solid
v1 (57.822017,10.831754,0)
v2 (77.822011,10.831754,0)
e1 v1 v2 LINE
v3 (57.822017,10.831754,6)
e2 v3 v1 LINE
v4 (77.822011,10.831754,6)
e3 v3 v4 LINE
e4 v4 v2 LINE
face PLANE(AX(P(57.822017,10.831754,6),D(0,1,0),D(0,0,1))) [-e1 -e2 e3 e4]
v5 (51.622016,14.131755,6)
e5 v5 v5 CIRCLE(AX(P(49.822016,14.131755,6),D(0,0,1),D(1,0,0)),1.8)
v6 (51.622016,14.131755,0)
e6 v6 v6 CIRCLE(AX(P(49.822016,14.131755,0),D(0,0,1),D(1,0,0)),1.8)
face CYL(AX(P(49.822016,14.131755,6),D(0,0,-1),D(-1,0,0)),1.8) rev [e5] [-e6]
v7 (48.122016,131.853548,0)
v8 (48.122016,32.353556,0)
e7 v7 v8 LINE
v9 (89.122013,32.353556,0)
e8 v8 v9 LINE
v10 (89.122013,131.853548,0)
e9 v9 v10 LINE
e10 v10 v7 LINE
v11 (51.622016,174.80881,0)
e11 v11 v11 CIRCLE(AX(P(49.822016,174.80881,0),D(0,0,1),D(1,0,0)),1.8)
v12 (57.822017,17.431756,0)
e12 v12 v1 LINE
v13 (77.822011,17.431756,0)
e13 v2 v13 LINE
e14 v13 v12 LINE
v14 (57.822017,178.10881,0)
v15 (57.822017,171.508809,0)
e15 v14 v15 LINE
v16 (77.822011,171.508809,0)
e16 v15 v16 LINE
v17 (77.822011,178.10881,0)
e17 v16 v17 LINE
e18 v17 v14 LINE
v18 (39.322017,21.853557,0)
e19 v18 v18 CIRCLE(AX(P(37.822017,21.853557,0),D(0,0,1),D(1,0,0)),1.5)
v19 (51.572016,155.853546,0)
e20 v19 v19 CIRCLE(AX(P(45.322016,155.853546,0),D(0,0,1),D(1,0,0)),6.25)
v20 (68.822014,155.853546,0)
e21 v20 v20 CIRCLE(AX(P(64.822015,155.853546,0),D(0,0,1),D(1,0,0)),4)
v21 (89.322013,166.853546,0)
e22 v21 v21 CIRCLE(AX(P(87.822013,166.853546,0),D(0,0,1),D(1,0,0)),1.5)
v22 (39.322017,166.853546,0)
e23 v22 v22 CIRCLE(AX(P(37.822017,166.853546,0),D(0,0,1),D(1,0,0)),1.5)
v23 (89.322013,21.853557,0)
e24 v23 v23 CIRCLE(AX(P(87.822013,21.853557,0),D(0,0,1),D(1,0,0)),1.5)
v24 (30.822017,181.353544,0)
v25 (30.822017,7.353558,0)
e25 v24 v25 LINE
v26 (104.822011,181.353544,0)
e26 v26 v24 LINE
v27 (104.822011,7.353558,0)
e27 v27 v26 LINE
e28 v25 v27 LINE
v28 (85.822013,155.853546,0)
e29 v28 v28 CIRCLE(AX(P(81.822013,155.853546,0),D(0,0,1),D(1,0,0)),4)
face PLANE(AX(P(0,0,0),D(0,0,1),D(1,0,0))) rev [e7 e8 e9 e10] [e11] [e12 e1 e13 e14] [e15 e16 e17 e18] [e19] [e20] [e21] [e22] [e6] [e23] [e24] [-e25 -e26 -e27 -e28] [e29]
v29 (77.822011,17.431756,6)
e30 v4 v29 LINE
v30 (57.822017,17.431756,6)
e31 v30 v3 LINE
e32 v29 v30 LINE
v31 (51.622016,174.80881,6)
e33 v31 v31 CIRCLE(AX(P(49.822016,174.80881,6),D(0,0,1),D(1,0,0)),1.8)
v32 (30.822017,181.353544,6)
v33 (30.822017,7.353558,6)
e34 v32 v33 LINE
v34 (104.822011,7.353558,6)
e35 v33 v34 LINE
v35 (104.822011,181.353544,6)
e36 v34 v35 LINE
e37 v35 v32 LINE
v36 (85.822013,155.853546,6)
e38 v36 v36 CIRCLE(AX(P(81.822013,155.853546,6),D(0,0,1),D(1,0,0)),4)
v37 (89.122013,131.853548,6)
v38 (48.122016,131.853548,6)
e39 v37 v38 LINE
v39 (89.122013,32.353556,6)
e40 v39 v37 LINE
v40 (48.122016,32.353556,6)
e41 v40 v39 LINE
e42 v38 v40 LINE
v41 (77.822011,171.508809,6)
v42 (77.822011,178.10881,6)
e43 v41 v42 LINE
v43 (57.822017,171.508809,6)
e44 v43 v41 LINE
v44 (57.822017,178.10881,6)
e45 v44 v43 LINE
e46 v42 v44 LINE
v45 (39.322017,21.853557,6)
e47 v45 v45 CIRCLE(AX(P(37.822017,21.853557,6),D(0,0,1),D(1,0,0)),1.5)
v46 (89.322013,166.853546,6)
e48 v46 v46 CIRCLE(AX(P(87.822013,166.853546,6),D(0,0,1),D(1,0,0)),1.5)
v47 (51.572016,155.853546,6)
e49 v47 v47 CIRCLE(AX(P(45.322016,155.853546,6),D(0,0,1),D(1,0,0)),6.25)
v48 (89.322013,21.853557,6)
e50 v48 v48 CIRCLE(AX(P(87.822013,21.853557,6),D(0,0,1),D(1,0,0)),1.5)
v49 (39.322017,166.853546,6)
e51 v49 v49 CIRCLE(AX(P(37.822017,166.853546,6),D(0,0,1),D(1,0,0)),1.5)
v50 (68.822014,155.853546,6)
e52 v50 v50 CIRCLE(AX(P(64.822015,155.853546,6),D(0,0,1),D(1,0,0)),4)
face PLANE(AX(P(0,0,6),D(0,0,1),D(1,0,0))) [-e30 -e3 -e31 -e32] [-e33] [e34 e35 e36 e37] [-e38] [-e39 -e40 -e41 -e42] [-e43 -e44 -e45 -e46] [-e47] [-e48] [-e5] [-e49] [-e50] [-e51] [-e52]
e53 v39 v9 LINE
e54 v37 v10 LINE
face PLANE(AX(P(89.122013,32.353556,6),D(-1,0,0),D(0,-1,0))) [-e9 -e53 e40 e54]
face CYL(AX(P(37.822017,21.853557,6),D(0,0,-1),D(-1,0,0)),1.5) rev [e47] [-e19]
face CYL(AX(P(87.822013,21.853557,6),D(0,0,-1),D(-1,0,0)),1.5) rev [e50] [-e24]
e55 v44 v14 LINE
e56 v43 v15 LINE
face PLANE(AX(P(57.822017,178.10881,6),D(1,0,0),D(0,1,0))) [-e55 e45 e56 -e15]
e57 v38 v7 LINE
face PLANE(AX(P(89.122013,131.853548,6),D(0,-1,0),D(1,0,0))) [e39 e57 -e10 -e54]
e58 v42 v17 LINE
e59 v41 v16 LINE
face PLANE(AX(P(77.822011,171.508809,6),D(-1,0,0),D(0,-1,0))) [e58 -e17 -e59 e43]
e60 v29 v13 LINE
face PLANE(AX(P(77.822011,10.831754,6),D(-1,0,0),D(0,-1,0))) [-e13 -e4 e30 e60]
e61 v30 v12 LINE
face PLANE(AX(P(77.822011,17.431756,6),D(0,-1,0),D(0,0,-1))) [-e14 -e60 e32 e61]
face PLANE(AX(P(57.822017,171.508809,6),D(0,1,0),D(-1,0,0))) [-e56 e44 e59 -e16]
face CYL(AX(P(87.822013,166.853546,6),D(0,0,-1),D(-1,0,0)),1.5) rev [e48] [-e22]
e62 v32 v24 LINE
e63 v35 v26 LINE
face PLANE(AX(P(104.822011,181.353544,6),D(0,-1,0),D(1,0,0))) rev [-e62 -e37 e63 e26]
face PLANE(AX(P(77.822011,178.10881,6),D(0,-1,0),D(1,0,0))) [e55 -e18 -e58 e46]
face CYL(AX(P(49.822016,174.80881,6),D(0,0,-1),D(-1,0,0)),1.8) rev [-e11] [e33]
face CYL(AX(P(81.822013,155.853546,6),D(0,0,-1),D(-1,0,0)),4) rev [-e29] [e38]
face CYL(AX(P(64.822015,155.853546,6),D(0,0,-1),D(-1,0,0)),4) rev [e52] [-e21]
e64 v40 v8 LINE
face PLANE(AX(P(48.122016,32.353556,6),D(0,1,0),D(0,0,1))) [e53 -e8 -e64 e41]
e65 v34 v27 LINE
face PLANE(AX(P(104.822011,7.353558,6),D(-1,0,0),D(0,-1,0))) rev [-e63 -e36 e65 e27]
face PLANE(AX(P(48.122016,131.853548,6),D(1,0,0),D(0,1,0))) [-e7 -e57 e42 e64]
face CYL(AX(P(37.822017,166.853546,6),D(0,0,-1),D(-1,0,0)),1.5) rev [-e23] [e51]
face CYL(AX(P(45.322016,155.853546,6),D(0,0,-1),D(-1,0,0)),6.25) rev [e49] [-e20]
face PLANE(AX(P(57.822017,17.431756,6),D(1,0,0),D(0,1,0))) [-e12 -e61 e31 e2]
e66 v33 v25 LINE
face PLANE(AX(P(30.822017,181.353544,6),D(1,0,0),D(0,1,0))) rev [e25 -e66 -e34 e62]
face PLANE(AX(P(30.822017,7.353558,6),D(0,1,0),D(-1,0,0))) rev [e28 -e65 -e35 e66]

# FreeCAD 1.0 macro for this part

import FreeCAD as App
import Part
import Sketcher

V = App.Vector

doc = App.newDocument("Part")
body = doc.addObject("PartDesign::Body", "Body")

# Sketch on XY plane
sketch1 = doc.addObject("Sketcher::SketchObject", "Sketch")
body.addObject(sketch1)
sketch1.AttachmentSupport = (doc.XY_Plane, [""])
sketch1.MapMode = "FlatFace"
sketch1.addGeometry(Part.LineSegment(V(30.8, 181.4, 0), V(30.8, 7.4, 0)), False)
sketch1.addGeometry(Part.LineSegment(V(30.8, 7.4, 0), V(104.8, 7.4, 0)), False)
sketch1.addGeometry(Part.LineSegment(V(104.8, 7.4, 0), V(104.8, 181.4, 0)), False)
sketch1.addGeometry(Part.LineSegment(V(104.8, 181.4, 0), V(30.8, 181.4, 0)), False)
sketch1.addGeometry(Part.Circle(V(37.8, 21.9, 0), V(0, 0, 1), 1.5), False)
sketch1.addGeometry(Part.Circle(V(49.8, 14.1, 0), V(0, 0, 1), 1.8), False)
sketch1.addGeometry(Part.LineSegment(V(77.8, 10.8, 0), V(57.8, 10.8, 0)), False)
sketch1.addGeometry(Part.LineSegment(V(57.8, 10.8, 0), V(57.8, 17.4, 0)), False)
sketch1.addGeometry(Part.LineSegment(V(57.8, 17.4, 0), V(77.8, 17.4, 0)), False)
sketch1.addGeometry(Part.LineSegment(V(77.8, 17.4, 0), V(77.8, 10.8, 0)), False)
sketch1.addGeometry(Part.Circle(V(87.8, 21.9, 0), V(0, 0, 1), 1.5), False)
sketch1.addGeometry(Part.LineSegment(V(89.1, 32.4, 0), V(48.1, 32.4, 0)), False)
sketch1.addGeometry(Part.LineSegment(V(48.1, 32.4, 0), V(48.1, 131.9, 0)), False)
sketch1.addGeometry(Part.LineSegment(V(48.1, 131.9, 0), V(89.1, 131.9, 0)), False)
sketch1.addGeometry(Part.LineSegment(V(89.1, 131.9, 0), V(89.1, 32.4, 0)), False)
sketch1.addGeometry(Part.Circle(V(45.3, 155.9, 0), V(0, 0, 1), 6.2), False)
sketch1.addGeometry(Part.Circle(V(37.8, 166.9, 0), V(0, 0, 1), 1.5), False)
sketch1.addGeometry(Part.Circle(V(49.8, 174.8, 0), V(0, 0, 1), 1.8), False)
sketch1.addGeometry(Part.Circle(V(64.8, 155.9, 0), V(0, 0, 1), 4), False)
sketch1.addGeometry(Part.LineSegment(V(77.8, 171.5, 0), V(57.8, 171.5, 0)), False)
sketch1.addGeometry(Part.LineSegment(V(57.8, 171.5, 0), V(57.8, 178.1, 0)), False)
sketch1.addGeometry(Part.LineSegment(V(57.8, 178.1, 0), V(77.8, 178.1, 0)), False)
sketch1.addGeometry(Part.LineSegment(V(77.8, 178.1, 0), V(77.8, 171.5, 0)), False)
sketch1.addGeometry(Part.Circle(V(81.8, 155.9, 0), V(0, 0, 1), 4), False)
sketch1.addGeometry(Part.Circle(V(87.8, 166.9, 0), V(0, 0, 1), 1.5), False)
sketch1.addConstraint(Sketcher.Constraint("Coincident", 0, 2, 1, 1))
sketch1.addConstraint(Sketcher.Constraint("Coincident", 1, 2, 2, 1))
sketch1.addConstraint(Sketcher.Constraint("Coincident", 2, 2, 3, 1))
sketch1.addConstraint(Sketcher.Constraint("Coincident", 3, 2, 0, 1))
sketch1.addConstraint(Sketcher.Constraint("Coincident", 6, 2, 7, 1))
sketch1.addConstraint(Sketcher.Constraint("Coincident", 7, 2, 8, 1))
sketch1.addConstraint(Sketcher.Constraint("Coincident", 8, 2, 9, 1))
sketch1.addConstraint(Sketcher.Constraint("Coincident", 9, 2, 6, 1))
sketch1.addConstraint(Sketcher.Constraint("Coincident", 11, 2, 12, 1))
sketch1.addConstraint(Sketcher.Constraint("Coincident", 12, 2, 13, 1))
sketch1.addConstraint(Sketcher.Constraint("Coincident", 13, 2, 14, 1))
sketch1.addConstraint(Sketcher.Constraint("Coincident", 14, 2, 11, 1))
sketch1.addConstraint(Sketcher.Constraint("Coincident", 19, 2, 20, 1))
sketch1.addConstraint(Sketcher.Constraint("Coincident", 20, 2, 21, 1))
sketch1.addConstraint(Sketcher.Constraint("Coincident", 21, 2, 22, 1))
sketch1.addConstraint(Sketcher.Constraint("Coincident", 22, 2, 19, 1))
sketch1.addConstraint(Sketcher.Constraint("Vertical", 0))
sketch1.addConstraint(Sketcher.Constraint("Horizontal", 1))
sketch1.addConstraint(Sketcher.Constraint("Vertical", 2))
sketch1.addConstraint(Sketcher.Constraint("Horizontal", 3))
sketch1.addConstraint(Sketcher.Constraint("Horizontal", 6))
sketch1.addConstraint(Sketcher.Constraint("Vertical", 7))
sketch1.addConstraint(Sketcher.Constraint("Horizontal", 8))
sketch1.addConstraint(Sketcher.Constraint("Vertical", 9))
sketch1.addConstraint(Sketcher.Constraint("Horizontal", 11))
sketch1.addConstraint(Sketcher.Constraint("Vertical", 12))
sketch1.addConstraint(Sketcher.Constraint("Horizontal", 13))
sketch1.addConstraint(Sketcher.Constraint("Vertical", 14))
sketch1.addConstraint(Sketcher.Constraint("Horizontal", 19))
sketch1.addConstraint(Sketcher.Constraint("Vertical", 20))
sketch1.addConstraint(Sketcher.Constraint("Horizontal", 21))
sketch1.addConstraint(Sketcher.Constraint("Vertical", 22))
sketch1.addConstraint(Sketcher.Constraint("Equal", 4, 10))
sketch1.addConstraint(Sketcher.Constraint("Equal", 10, 16))
sketch1.addConstraint(Sketcher.Constraint("Equal", 5, 17))
sketch1.addConstraint(Sketcher.Constraint("Equal", 18, 23))
sketch1.addConstraint(Sketcher.Constraint("Equal", 16, 24))
sketch1.addConstraint(Sketcher.Constraint("Horizontal", 4, 3, 10, 3))
sketch1.addConstraint(Sketcher.Constraint("Horizontal", 15, 3, 18, 3))
sketch1.addConstraint(Sketcher.Constraint("Horizontal", 18, 3, 23, 3))
sketch1.addConstraint(Sketcher.Constraint("Horizontal", 16, 3, 24, 3))
sketch1.addConstraint(Sketcher.Constraint("Vertical", 4, 3, 16, 3))
sketch1.addConstraint(Sketcher.Constraint("Vertical", 5, 3, 17, 3))
sketch1.addConstraint(Sketcher.Constraint("Vertical", 10, 3, 24, 3))
sketch1.addConstraint(Sketcher.Constraint("Vertical", 7, 2, 19, 2))
sketch1.addConstraint(Sketcher.Constraint("Vertical", 9, 2, 21, 2))
sketch1.addConstraint(Sketcher.Constraint("Equal", 9, 20))
sketch1.addConstraint(Sketcher.Constraint("Diameter", 4, 3.0))
sketch1.addConstraint(Sketcher.Constraint("Diameter", 18, 7.999999))
sketch1.addConstraint(Sketcher.Constraint("Diameter", 5, 3.6))
sketch1.addConstraint(Sketcher.Constraint("Diameter", 15, 12.499999))
sketch1.addConstraint(Sketcher.Constraint("DistanceY", 7, 1, 7, 2, 6.600001))
sketch1.addConstraint(Sketcher.Constraint("DistanceX", 4, 3, 5, 3, 11.999999))
sketch1.addConstraint(Sketcher.Constraint("DistanceY", 15, 3, 16, 3, 10.999999))
sketch1.addConstraint(Sketcher.Constraint("DistanceX", 17, 3, 18, 3, 14.999999))
sketch1.addConstraint(Sketcher.Constraint("DistanceX", 18, 3, 10, 3, 22.999998))
sketch1.addConstraint(Sketcher.Constraint("DistanceX", 18, 3, 23, 3, 16.999999))
sketch1.addConstraint(Sketcher.Constraint("DistanceX", 0, 2, 4, 3, 6.999999))
sketch1.addConstraint(Sketcher.Constraint("DistanceX", 10, 3, 1, 2, 16.999999))
sketch1.addConstraint(Sketcher.Constraint("DistanceX", 5, 3, 6, 2, 8.000001))
sketch1.addConstraint(Sketcher.Constraint("DistanceX", 8, 2, 10, 3, 10.000001))
sketch1.addConstraint(Sketcher.Constraint("DistanceY", 0, 2, 11, 2, 24.999998))
sketch1.addConstraint(Sketcher.Constraint("DistanceX", 4, 3, 15, 3, 7.499999))
sketch1.addConstraint(Sketcher.Constraint("DistanceY", 0, 2, 4, 3, 14.499999))
sketch1.addConstraint(Sketcher.Constraint("DistanceY", 24, 3, 2, 2, 14.499999))
sketch1.addConstraint(Sketcher.Constraint("DistanceY", 6, 2, 5, 3, 3.300001))
sketch1.addConstraint(Sketcher.Constraint("DistanceX", 4, 3, 11, 2, 10.299999))
sketch1.addConstraint(Sketcher.Constraint("DistanceX", 23, 3, 13, 2, 7.299999))
sketch1.addConstraint(Sketcher.Constraint("DistanceY", 19, 2, 17, 3, 3.300001))
sketch1.addConstraint(Sketcher.Constraint("DistanceY", 7, 2, 4, 3, 4.421801))
sketch1.addConstraint(Sketcher.Constraint("DistanceY", 0, 2, 0, 1, 173.999986))
sketch1.addConstraint(Sketcher.Constraint("DistanceY", 12, 1, 12, 2, 99.499992))
sketch1.addConstraint(Sketcher.Constraint("DistanceY", -1, 1, 17, 3, 174.80881))
sketch1.addConstraint(Sketcher.Constraint("DistanceY", -1, 1, 0, 2, 7.353558))
sketch1.addConstraint(Sketcher.Constraint("DistanceX", -1, 1, 1, 2, 104.822011))
pad1 = doc.addObject("PartDesign::Pad", "Pad")
body.addObject(pad1)
pad1.Profile = sketch1
pad1.Length = 6

doc.recompute()
